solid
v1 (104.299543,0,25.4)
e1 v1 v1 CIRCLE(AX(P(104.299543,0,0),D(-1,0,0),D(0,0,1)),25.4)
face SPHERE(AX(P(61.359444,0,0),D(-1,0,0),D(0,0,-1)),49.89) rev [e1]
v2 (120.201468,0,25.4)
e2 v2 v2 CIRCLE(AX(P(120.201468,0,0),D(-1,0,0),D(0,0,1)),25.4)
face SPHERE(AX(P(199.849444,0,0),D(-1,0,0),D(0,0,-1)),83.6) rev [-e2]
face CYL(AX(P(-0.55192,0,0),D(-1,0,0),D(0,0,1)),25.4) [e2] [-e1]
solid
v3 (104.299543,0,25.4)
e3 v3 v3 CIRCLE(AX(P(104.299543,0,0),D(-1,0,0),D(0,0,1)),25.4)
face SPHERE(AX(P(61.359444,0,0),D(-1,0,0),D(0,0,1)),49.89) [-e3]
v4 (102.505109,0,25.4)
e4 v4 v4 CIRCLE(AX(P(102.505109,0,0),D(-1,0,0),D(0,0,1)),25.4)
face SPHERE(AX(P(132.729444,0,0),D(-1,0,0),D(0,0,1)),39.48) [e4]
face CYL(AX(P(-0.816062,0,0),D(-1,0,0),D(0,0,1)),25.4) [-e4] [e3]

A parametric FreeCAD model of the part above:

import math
import FreeCAD as App
import Part
import Sketcher
Q = App.Units.Quantity

doc = App.newDocument("Part")
body = doc.addObject("PartDesign::Body", "Body")

sketch1 = body.newObject("Sketcher::SketchObject", "Sketch")
sketch1.AttachmentSupport = (doc.getObject("XZ_Plane"), [""])
sketch1.MapMode = "FlatFace"
sketch1.addGeometry([
    Part.ArcOfCircle(Part.Circle(App.Vector(132.7, 0, 0), App.Vector(0, 0, 1), 39.5), math.radians(-180), math.radians(-140)),
    Part.LineSegment(App.Vector(93.2, 0, 0), App.Vector(111.2, 0, 0)),
    Part.ArcOfCircle(Part.Circle(App.Vector(61.4, 0, 0), App.Vector(0, 0, 1), 49.9), math.radians(-31), math.radians(0)),
    Part.LineSegment(App.Vector(104.3, -25.4, 0), App.Vector(102.5, -25.4, 0)),
], False)
sketch1.addConstraint([
    Sketcher.Constraint("Coincident", 0, 1, 1, 1),
    Sketcher.Constraint("Coincident", 1, 2, 2, 2),
    Sketcher.Constraint("Coincident", 2, 1, 3, 1),
    Sketcher.Constraint("Coincident", 3, 2, 0, 2),
    Sketcher.Constraint("Horizontal", 1),
    Sketcher.Constraint("Horizontal", 3),
    Sketcher.Constraint("PointOnObject", 0, 3, -1),
    Sketcher.Constraint("PointOnObject", 2, 3, -1),
    Sketcher.Constraint("PointOnObject", 0, 1, -1),
    Sketcher.Constraint("DistanceX", 1, 1, 1, 2, Q("18 mm")),
    Sketcher.Constraint("Radius", 0, Q("39.48 mm")),
    Sketcher.Constraint("Radius", 2, Q("49.89 mm")),
    Sketcher.Constraint("DistanceY", 2, 1, -1, 1, Q("25.4 mm")),
    Sketcher.Constraint("DistanceX", -1, 1, 3, 2, Q("102.505109 mm")),
])
revolution = body.newObject("PartDesign::Revolution", "Revolution")
revolution.Profile = sketch1
revolution.ReferenceAxis = (sketch1, ["H_Axis"])
revolution.Angle = 360
body2 = doc.addObject("PartDesign::Body", "Body001")

sketch2 = body2.newObject("Sketcher::SketchObject", "Sketch001")
sketch2.AttachmentSupport = (doc.getObject("XZ_Plane001"), [""])
sketch2.MapMode = "FlatFace"
sketch2.addGeometry([
    Part.LineSegment(App.Vector(120, -25, 0), App.Vector(104, -25, 0)),
    Part.ArcOfCircle(Part.Circle(App.Vector(61, 0, 0), App.Vector(0, 0, 1), 50), math.radians(-31), math.radians(0)),
    Part.LineSegment(App.Vector(111, 0, 0), App.Vector(116, 0, 0)),
    Part.ArcOfCircle(Part.Circle(App.Vector(200, 0, 0), App.Vector(0, 0, 1), 84), math.radians(180), math.radians(197.69)),
], False)
sketch2.addConstraint([
    Sketcher.Constraint("Coincident", 0, 2, 1, 1),
    Sketcher.Constraint("Coincident", 1, 2, 2, 1),
    Sketcher.Constraint("Coincident", 2, 2, 3, 1),
    Sketcher.Constraint("Coincident", 3, 2, 0, 1),
    Sketcher.Constraint("Horizontal", 0),
    Sketcher.Constraint("Horizontal", 2),
    Sketcher.Constraint("PointOnObject", 1, 3, -1),
    Sketcher.Constraint("PointOnObject", 3, 3, -1),
    Sketcher.Constraint("PointOnObject", 1, 2, -1),
    Sketcher.Constraint("Radius", 3, Q("83.6 mm")),
    Sketcher.Constraint("DistanceX", 2, 1, 2, 2, Q("5 mm")),
    Sketcher.Constraint("Radius", 1, Q("49.89 mm")),
    Sketcher.Constraint("DistanceY", 0, 2, -1, 1, Q("25.4 mm")),
    Sketcher.Constraint("DistanceX", -1, 1, 3, 2, Q("120.201468 mm")),
])
revolution2 = body2.newObject("PartDesign::Revolution", "Revolution001")
revolution2.Profile = sketch2
revolution2.ReferenceAxis = (sketch2, ["H_Axis"])
revolution2.Angle = 360

doc.recompute()
